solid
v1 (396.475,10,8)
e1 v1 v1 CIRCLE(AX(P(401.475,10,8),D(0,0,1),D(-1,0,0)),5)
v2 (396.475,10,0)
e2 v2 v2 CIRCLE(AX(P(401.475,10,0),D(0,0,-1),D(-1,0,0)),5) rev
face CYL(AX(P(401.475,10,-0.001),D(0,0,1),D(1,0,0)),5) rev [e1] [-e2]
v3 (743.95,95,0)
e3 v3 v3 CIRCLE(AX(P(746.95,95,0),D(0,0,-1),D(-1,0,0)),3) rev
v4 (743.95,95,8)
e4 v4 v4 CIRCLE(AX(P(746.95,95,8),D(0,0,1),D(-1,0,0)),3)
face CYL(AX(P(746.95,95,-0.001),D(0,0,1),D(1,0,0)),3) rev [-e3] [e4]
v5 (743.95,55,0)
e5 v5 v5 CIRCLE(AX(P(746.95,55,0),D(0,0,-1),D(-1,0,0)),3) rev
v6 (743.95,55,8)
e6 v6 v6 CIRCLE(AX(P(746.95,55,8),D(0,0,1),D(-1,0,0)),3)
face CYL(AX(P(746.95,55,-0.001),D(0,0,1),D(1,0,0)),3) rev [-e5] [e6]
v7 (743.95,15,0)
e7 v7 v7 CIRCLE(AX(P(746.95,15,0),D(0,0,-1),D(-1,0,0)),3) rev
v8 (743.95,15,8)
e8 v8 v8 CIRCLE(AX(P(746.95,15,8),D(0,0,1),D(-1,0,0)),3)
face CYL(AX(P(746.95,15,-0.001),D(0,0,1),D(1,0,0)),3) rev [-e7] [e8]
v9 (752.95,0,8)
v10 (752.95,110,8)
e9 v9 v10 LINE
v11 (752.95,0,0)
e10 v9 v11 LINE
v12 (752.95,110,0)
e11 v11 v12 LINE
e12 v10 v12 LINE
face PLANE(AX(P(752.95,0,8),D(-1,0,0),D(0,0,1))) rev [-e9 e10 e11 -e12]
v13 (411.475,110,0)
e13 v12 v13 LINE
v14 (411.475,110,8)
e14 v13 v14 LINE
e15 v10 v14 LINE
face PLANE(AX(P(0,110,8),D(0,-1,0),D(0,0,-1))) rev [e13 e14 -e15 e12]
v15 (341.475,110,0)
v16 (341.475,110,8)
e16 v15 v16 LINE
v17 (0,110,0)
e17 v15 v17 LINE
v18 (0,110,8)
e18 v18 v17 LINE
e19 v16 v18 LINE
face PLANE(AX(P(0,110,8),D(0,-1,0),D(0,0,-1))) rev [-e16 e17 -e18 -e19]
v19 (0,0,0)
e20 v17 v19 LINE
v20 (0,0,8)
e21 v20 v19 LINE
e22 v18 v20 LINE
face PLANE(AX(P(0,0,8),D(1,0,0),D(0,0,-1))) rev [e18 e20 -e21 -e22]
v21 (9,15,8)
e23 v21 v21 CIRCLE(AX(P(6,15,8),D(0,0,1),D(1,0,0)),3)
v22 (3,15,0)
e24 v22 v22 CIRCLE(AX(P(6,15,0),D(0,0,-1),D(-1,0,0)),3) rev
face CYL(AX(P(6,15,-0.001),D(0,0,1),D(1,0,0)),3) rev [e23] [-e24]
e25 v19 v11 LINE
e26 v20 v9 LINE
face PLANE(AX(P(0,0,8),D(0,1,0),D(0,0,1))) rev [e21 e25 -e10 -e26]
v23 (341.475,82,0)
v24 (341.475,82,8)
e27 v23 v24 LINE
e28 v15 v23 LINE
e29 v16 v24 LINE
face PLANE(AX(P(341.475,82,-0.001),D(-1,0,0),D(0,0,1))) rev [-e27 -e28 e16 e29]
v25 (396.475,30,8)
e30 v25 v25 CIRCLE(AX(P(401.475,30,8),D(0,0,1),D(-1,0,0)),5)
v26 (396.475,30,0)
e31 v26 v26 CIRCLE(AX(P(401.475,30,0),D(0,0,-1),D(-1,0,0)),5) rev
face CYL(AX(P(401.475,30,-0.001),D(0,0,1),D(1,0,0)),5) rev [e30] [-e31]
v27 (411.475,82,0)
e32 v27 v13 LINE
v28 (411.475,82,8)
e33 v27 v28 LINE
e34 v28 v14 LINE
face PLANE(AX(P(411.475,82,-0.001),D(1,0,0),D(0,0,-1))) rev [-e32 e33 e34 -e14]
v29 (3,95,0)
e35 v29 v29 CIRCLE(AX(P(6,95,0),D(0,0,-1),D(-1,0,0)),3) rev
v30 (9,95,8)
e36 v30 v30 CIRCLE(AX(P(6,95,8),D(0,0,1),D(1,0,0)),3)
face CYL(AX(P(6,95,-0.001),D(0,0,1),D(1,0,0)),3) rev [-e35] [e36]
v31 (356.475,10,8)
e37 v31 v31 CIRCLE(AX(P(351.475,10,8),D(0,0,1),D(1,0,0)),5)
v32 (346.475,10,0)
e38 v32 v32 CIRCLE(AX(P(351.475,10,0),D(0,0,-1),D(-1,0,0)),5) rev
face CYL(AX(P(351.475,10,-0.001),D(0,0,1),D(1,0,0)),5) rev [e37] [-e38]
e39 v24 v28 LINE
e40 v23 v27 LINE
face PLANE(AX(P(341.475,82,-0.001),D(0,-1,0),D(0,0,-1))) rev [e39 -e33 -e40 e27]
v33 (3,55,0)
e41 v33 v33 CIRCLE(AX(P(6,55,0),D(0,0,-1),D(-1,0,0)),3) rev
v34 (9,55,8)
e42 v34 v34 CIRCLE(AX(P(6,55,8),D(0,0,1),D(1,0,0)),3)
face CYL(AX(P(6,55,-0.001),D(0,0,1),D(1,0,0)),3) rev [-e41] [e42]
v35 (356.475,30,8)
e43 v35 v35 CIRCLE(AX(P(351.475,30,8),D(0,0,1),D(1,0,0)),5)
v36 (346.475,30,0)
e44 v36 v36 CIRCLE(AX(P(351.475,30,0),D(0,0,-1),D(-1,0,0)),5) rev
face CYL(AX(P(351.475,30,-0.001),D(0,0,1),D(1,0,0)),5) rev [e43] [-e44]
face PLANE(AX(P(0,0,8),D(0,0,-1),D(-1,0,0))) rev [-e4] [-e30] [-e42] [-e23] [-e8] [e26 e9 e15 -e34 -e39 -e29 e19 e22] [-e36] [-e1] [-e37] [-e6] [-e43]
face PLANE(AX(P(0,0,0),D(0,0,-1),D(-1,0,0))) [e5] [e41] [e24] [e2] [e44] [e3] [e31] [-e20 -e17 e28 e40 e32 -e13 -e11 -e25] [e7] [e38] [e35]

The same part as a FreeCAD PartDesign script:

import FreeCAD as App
import Part
import Sketcher


def add_polygon(sketch, points):
    """Adds a closed chain of lines whose ends are joined by coincident constraints."""
    first, n = sketch.GeometryCount, len(points)
    for a, b in zip(points, points[1:] + points[:1]):
        sketch.addGeometry(Part.LineSegment(App.Vector(*a, 0), App.Vector(*b, 0)), False)
    for i in range(n):
        sketch.addConstraint(Sketcher.Constraint("Coincident", first + i, 2, first + (i + 1) % n, 1))

doc = App.newDocument("Part")
body = doc.addObject("PartDesign::Body", "Body")

sketch1 = doc.addObject("Sketcher::SketchObject", "Sketch")
body.addObject(sketch1)
sketch1.AttachmentSupport = (doc.XY_Plane, [""])
sketch1.MapMode = "FlatFace"
add_polygon(sketch1, [(0, 110), (0, 0), (753, 0), (753, 110)])
sketch1.addConstraint([
    Sketcher.Constraint("Vertical", 0),
    Sketcher.Constraint("Horizontal", 1),
    Sketcher.Constraint("Vertical", 2),
    Sketcher.Constraint("Horizontal", 3),
    Sketcher.Constraint("Coincident", 0, 2, -1, 1),
    Sketcher.Constraint("DistanceY", 0, 2, 0, 1, 110.0),
    Sketcher.Constraint("DistanceX", 1, 1, 1, 2, 752.95),
])
pad1 = doc.addObject("PartDesign::Pad", "Pad")
body.addObject(pad1)
pad1.Profile = sketch1
pad1.Length = 8

sketch2 = doc.addObject("Sketcher::SketchObject", "Sketch001")
body.addObject(sketch2)
sketch2.AttachmentSupport = (doc.XY_Plane, [""])
sketch2.MapMode = "FlatFace"
sketch2.AttachmentOffset = App.Placement(App.Vector(0, 0, 8), App.Rotation())
sketch2.addGeometry(Part.Circle(App.Vector(351, 30, 0), App.Vector(0, 0, 1), 5), False)
sketch2.addConstraint([
    Sketcher.Constraint("Diameter", 0, 10.0),
    Sketcher.Constraint("DistanceY", -1, 1, 0, 3, 30.0),
    Sketcher.Constraint("DistanceX", -1, 1, 0, 3, 351.475),
])
pocket1 = doc.addObject("PartDesign::Pocket", "Pocket")
body.addObject(pocket1)
pocket1.Profile = sketch2
pocket1.Type = "UpToFirst"

sketch3 = doc.addObject("Sketcher::SketchObject", "Sketch002")
body.addObject(sketch3)
sketch3.AttachmentSupport = (doc.XY_Plane, [""])
sketch3.MapMode = "FlatFace"
sketch3.AttachmentOffset = App.Placement(App.Vector(0, 0, 8), App.Rotation())
sketch3.addGeometry(Part.Circle(App.Vector(351, 10, 0), App.Vector(0, 0, 1), 5), False)
sketch3.addConstraint([
    Sketcher.Constraint("Diameter", 0, 10.0),
    Sketcher.Constraint("DistanceY", -1, 1, 0, 3, 10.0),
    Sketcher.Constraint("DistanceX", -1, 1, 0, 3, 351.475),
])
pocket2 = doc.addObject("PartDesign::Pocket", "Pocket001")
body.addObject(pocket2)
pocket2.Profile = sketch3
pocket2.Type = "UpToFirst"

sketch4 = doc.addObject("Sketcher::SketchObject", "Sketch003")
body.addObject(sketch4)
sketch4.AttachmentSupport = (doc.XY_Plane, [""])
sketch4.MapMode = "FlatFace"
sketch4.AttachmentOffset = App.Placement(App.Vector(0, 0, 8), App.Rotation())
sketch4.addGeometry(Part.Circle(App.Vector(401, 30, 0), App.Vector(0, 0, 1), 5), False)
sketch4.addConstraint([
    Sketcher.Constraint("Diameter", 0, 10.0),
    Sketcher.Constraint("DistanceY", -1, 1, 0, 3, 30.0),
    Sketcher.Constraint("DistanceX", -1, 1, 0, 3, 401.475),
])
pocket3 = doc.addObject("PartDesign::Pocket", "Pocket002")
body.addObject(pocket3)
pocket3.Profile = sketch4
pocket3.Type = "UpToFirst"

sketch5 = doc.addObject("Sketcher::SketchObject", "Sketch004")
body.addObject(sketch5)
sketch5.AttachmentSupport = (doc.XY_Plane, [""])
sketch5.MapMode = "FlatFace"
sketch5.AttachmentOffset = App.Placement(App.Vector(0, 0, 8), App.Rotation())
sketch5.addGeometry(Part.Circle(App.Vector(401, 10, 0), App.Vector(0, 0, 1), 5), False)
sketch5.addConstraint([
    Sketcher.Constraint("Diameter", 0, 10.0),
    Sketcher.Constraint("DistanceY", -1, 1, 0, 3, 10.0),
    Sketcher.Constraint("DistanceX", -1, 1, 0, 3, 401.475),
])
pocket4 = doc.addObject("PartDesign::Pocket", "Pocket003")
body.addObject(pocket4)
pocket4.Profile = sketch5
pocket4.Type = "UpToFirst"

sketch6 = doc.addObject("Sketcher::SketchObject", "Sketch005")
body.addObject(sketch6)
sketch6.AttachmentSupport = (doc.XY_Plane, [""])
sketch6.MapMode = "FlatFace"
sketch6.AttachmentOffset = App.Placement(App.Vector(0, 0, 8), App.Rotation())
sketch6.addGeometry(Part.Circle(App.Vector(6, 95, 0), App.Vector(0, 0, 1), 3), False)
sketch6.addConstraint([
    Sketcher.Constraint("Diameter", 0, 6.0),
    Sketcher.Constraint("DistanceX", -1, 1, 0, 3, 6.0),
    Sketcher.Constraint("DistanceY", -1, 1, 0, 3, 95.0),
])
pocket5 = doc.addObject("PartDesign::Pocket", "Pocket004")
body.addObject(pocket5)
pocket5.Profile = sketch6
pocket5.Type = "UpToFirst"

sketch7 = doc.addObject("Sketcher::SketchObject", "Sketch006")
body.addObject(sketch7)
sketch7.AttachmentSupport = (doc.XY_Plane, [""])
sketch7.MapMode = "FlatFace"
sketch7.AttachmentOffset = App.Placement(App.Vector(0, 0, 8), App.Rotation())
sketch7.addGeometry(Part.Circle(App.Vector(6, 55, 0), App.Vector(0, 0, 1), 3), False)
sketch7.addConstraint([
    Sketcher.Constraint("Diameter", 0, 6.0),
    Sketcher.Constraint("DistanceX", -1, 1, 0, 3, 6.0),
    Sketcher.Constraint("DistanceY", -1, 1, 0, 3, 55.0),
])
pocket6 = doc.addObject("PartDesign::Pocket", "Pocket005")
body.addObject(pocket6)
pocket6.Profile = sketch7
pocket6.Type = "UpToFirst"

sketch8 = doc.addObject("Sketcher::SketchObject", "Sketch007")
body.addObject(sketch8)
sketch8.AttachmentSupport = (doc.XY_Plane, [""])
sketch8.MapMode = "FlatFace"
sketch8.AttachmentOffset = App.Placement(App.Vector(0, 0, 8), App.Rotation())
sketch8.addGeometry(Part.Circle(App.Vector(6, 15, 0), App.Vector(0, 0, 1), 3), False)
sketch8.addConstraint([
    Sketcher.Constraint("Diameter", 0, 6.0),
    Sketcher.Constraint("DistanceX", -1, 1, 0, 3, 6.0),
    Sketcher.Constraint("DistanceY", -1, 1, 0, 3, 15.0),
])
pocket7 = doc.addObject("PartDesign::Pocket", "Pocket006")
body.addObject(pocket7)
pocket7.Profile = sketch8
pocket7.Type = "UpToFirst"

sketch9 = doc.addObject("Sketcher::SketchObject", "Sketch008")
body.addObject(sketch9)
sketch9.AttachmentSupport = (doc.XY_Plane, [""])
sketch9.MapMode = "FlatFace"
sketch9.AttachmentOffset = App.Placement(App.Vector(0, 0, 8), App.Rotation())
sketch9.addGeometry(Part.Circle(App.Vector(747, 15, 0), App.Vector(0, 0, 1), 3), False)
sketch9.addConstraint([
    Sketcher.Constraint("Diameter", 0, 6.0),
    Sketcher.Constraint("DistanceY", -1, 1, 0, 3, 15.0),
    Sketcher.Constraint("DistanceX", -1, 1, 0, 3, 746.95),
])
pocket8 = doc.addObject("PartDesign::Pocket", "Pocket007")
body.addObject(pocket8)
pocket8.Profile = sketch9
pocket8.Type = "UpToFirst"

sketch10 = doc.addObject("Sketcher::SketchObject", "Sketch009")
body.addObject(sketch10)
sketch10.AttachmentSupport = (doc.XY_Plane, [""])
sketch10.MapMode = "FlatFace"
sketch10.AttachmentOffset = App.Placement(App.Vector(0, 0, 8), App.Rotation())
sketch10.addGeometry(Part.Circle(App.Vector(747, 55, 0), App.Vector(0, 0, 1), 3), False)
sketch10.addConstraint([
    Sketcher.Constraint("Diameter", 0, 6.0),
    Sketcher.Constraint("DistanceY", -1, 1, 0, 3, 55.0),
    Sketcher.Constraint("DistanceX", -1, 1, 0, 3, 746.95),
])
pocket9 = doc.addObject("PartDesign::Pocket", "Pocket008")
body.addObject(pocket9)
pocket9.Profile = sketch10
pocket9.Type = "UpToFirst"

sketch11 = doc.addObject("Sketcher::SketchObject", "Sketch010")
body.addObject(sketch11)
sketch11.AttachmentSupport = (doc.XY_Plane, [""])
sketch11.MapMode = "FlatFace"
sketch11.AttachmentOffset = App.Placement(App.Vector(0, 0, 8), App.Rotation())
sketch11.addGeometry(Part.Circle(App.Vector(747, 95, 0), App.Vector(0, 0, 1), 3), False)
sketch11.addConstraint([
    Sketcher.Constraint("Diameter", 0, 6.0),
    Sketcher.Constraint("DistanceY", -1, 1, 0, 3, 95.0),
    Sketcher.Constraint("DistanceX", -1, 1, 0, 3, 746.95),
])
pocket10 = doc.addObject("PartDesign::Pocket", "Pocket009")
body.addObject(pocket10)
pocket10.Profile = sketch11
pocket10.Type = "UpToFirst"

sketch12 = doc.addObject("Sketcher::SketchObject", "Sketch011")
body.addObject(sketch12)
sketch12.AttachmentSupport = (doc.XY_Plane, [""])
sketch12.MapMode = "FlatFace"
sketch12.AttachmentOffset = App.Placement(App.Vector(0, 0, 8), App.Rotation())
add_polygon(sketch12, [(341, 110), (341, 82), (411, 82), (411, 110)])
sketch12.addConstraint([
    Sketcher.Constraint("Vertical", 0),
    Sketcher.Constraint("Horizontal", 1),
    Sketcher.Constraint("Vertical", 2),
    Sketcher.Constraint("Horizontal", 3),
    Sketcher.Constraint("DistanceX", 1, 1, 1, 2, 70.0),
    Sketcher.Constraint("DistanceY", 0, 2, 0, 1, 28.0),
    Sketcher.Constraint("DistanceY", -1, 1, 0, 2, 82.0),
    Sketcher.Constraint("DistanceX", -1, 1, 0, 2, 341.475),
])
pocket11 = doc.addObject("PartDesign::Pocket", "Pocket010")
body.addObject(pocket11)
pocket11.Profile = sketch12
pocket11.Type = "UpToFirst"

doc.recompute()
